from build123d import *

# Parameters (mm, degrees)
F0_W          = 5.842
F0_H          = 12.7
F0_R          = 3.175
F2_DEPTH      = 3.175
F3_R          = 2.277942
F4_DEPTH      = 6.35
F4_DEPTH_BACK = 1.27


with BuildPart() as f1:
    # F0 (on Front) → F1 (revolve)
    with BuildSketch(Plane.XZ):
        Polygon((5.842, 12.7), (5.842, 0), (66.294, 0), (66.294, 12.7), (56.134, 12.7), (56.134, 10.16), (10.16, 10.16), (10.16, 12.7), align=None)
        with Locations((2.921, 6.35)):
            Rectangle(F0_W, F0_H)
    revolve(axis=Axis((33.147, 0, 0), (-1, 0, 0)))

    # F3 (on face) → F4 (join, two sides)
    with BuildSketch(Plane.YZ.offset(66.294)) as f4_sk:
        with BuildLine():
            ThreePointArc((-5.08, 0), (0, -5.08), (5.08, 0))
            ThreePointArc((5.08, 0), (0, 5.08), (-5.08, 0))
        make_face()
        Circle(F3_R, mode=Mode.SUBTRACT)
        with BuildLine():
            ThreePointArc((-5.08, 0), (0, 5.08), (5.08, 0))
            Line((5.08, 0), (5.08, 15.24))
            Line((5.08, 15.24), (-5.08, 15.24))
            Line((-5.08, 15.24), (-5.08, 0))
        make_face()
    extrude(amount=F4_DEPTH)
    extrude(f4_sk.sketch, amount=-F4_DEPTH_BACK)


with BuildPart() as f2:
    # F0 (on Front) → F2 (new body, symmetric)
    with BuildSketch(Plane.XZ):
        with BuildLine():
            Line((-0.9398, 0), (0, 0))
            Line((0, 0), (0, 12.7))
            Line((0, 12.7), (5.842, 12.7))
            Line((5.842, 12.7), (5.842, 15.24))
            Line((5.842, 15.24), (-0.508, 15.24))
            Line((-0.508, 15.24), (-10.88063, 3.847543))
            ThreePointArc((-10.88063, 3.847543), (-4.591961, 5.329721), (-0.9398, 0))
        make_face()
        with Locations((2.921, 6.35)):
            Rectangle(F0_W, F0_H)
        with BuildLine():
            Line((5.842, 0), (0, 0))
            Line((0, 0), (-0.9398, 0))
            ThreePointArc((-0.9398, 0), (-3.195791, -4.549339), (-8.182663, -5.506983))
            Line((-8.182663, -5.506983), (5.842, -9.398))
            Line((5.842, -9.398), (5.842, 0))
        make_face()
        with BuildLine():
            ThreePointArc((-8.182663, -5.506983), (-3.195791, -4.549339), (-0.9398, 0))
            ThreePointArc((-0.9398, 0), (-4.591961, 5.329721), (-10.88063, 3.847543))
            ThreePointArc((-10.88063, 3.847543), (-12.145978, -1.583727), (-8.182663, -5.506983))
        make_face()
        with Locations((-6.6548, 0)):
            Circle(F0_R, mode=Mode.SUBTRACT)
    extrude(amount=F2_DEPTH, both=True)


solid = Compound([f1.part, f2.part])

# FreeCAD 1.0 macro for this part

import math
import FreeCAD as App
import Part
import Sketcher
Q = App.Units.Quantity


def add_polygon(sketch, points):
    """Adds a closed chain of lines whose ends are joined by coincident constraints."""
    first, n = sketch.GeometryCount, len(points)
    for a, b in zip(points, points[1:] + points[:1]):
        sketch.addGeometry(Part.LineSegment(App.Vector(*a, 0), App.Vector(*b, 0)), False)
    for i in range(n):
        sketch.addConstraint(Sketcher.Constraint("Coincident", first + i, 2, first + (i + 1) % n, 1))

doc = App.newDocument("Part")
params = doc.addObject("Spreadsheet::Sheet", "Params")
for row, (alias, value) in enumerate([
    ("sketch1_width", "0.4 in"),
    ("sketch1_height", "0.5 in"),
    ("sketch1_height2", "0.1 in"),
    ("sketch1_width2", "1.81 in"),
    ("revolution_angle", "360 deg"),
    ("sketch2_radius", "0.2 in"),
    ("sketch2_height", "0.6 in"),
    ("pad1_length", "0.25 in"),
    ("pad1_length2", "0.05 in"),
    ("sketch3_diameter", "0.25 in"),
    ("sketch3_radius", "0.225 in"),
    ("sketch3_width", "0.25 in"),
    ("sketch3_height", "0.97 in"),
    ("pad2_length", "0.25 in"),
], start=1):
    params.set(f"A{row}", alias)
    params.set(f"B{row}", "=" + value)
    params.setAlias(f"B{row}", alias)

body = doc.addObject("PartDesign::Body", "Body")

# Sketch on XZ plane
sketch1 = body.newObject("Sketcher::SketchObject", "Sketch")
sketch1.AttachmentSupport = (doc.getObject("XZ_Plane"), [""])
sketch1.MapMode = "FlatFace"
add_polygon(sketch1, [(66.3, 0), (66.3, 12.7), (56.1, 12.7), (56.1, 10.2), (10.2, 10.2), (10.2, 12.7), (0, 12.7), (0, 0)])  # lines 0-7
sketch1.addConstraint([
    Sketcher.Constraint("Vertical", 0),
    Sketcher.Constraint("Horizontal", 1),
    Sketcher.Constraint("Vertical", 2),
    Sketcher.Constraint("Horizontal", 3),
    Sketcher.Constraint("Vertical", 4),
    Sketcher.Constraint("Horizontal", 5),
    Sketcher.Constraint("Vertical", 6),
    Sketcher.Constraint("Horizontal", 7),
    Sketcher.Constraint("Coincident", 6, 2, -1, 1),
    Sketcher.Constraint("Horizontal", 1, 2, 4, 2),
    Sketcher.Constraint("Equal", 1, 5),
    Sketcher.Constraint("DistanceX", 1, 2, 1, 1, Q("0.4 in")),
    Sketcher.Constraint("DistanceY", 0, 1, 0, 2, Q("0.5 in")),
    Sketcher.Constraint("DistanceY", 2, 2, 2, 1, Q("0.1 in")),
    Sketcher.Constraint("DistanceX", 3, 2, 3, 1, Q("1.81 in")),
])
sketch1.setExpression("Constraints[19]", "Params.sketch1_width")
sketch1.setExpression("Constraints[20]", "Params.sketch1_height")
sketch1.setExpression("Constraints[21]", "Params.sketch1_height2")
sketch1.setExpression("Constraints[22]", "Params.sketch1_width2")
revolution = body.newObject("PartDesign::Revolution", "Revolution")
revolution.Profile = sketch1
revolution.ReferenceAxis = (sketch1, ["H_Axis"])
revolution.setExpression("Angle", "Params.revolution_angle")

# Sketch on YZ plane
sketch2 = body.newObject("Sketcher::SketchObject", "Sketch001")
sketch2.AttachmentSupport = (doc.getObject("YZ_Plane"), [""])
sketch2.MapMode = "FlatFace"
sketch2.AttachmentOffset = App.Placement(App.Vector(0, 0, 2.61 * 25.4), App.Rotation())
sketch2.addGeometry([
    Part.ArcOfCircle(Part.Circle(App.Vector(0, 0, 0), App.Vector(0, 0, 1), 5.1), math.radians(180), math.radians(360)),  # 0
    Part.LineSegment(App.Vector(5.1, 0, 0), App.Vector(5.1, 15.2, 0)),  # 1
    Part.LineSegment(App.Vector(5.1, 15.2, 0), App.Vector(-5.1, 15.2, 0)),  # 2
    Part.LineSegment(App.Vector(-5.1, 15.2, 0), App.Vector(-5.1, 0, 0)),  # 3
    Part.Circle(App.Vector(0, 0, 0), App.Vector(0, 0, 1), 2.3),  # 4
], False)
sketch2.addConstraint([
    Sketcher.Constraint("Tangent", 0, 2, 1, 1),
    Sketcher.Constraint("Coincident", 1, 2, 2, 1),
    Sketcher.Constraint("Coincident", 2, 2, 3, 1),
    Sketcher.Constraint("Tangent", 3, 2, 0, 1),
    Sketcher.Constraint("Vertical", 1),
    Sketcher.Constraint("Horizontal", 2),
    Sketcher.Constraint("Vertical", 3),
    Sketcher.Constraint("Coincident", 0, 3, -1, 1),
    Sketcher.Constraint("Coincident", 4, 3, -1, 1),
    Sketcher.Constraint("Radius", 0, Q("0.2 in")),
    Sketcher.Constraint("DistanceY", 1, 1, 1, 2, Q("0.6 in")),
    Sketcher.Constraint("Diameter", 4, Q("4.555884 mm")),
])
sketch2.setExpression("Constraints[9]", "Params.sketch2_radius")
sketch2.setExpression("Constraints[10]", "Params.sketch2_height")
pad1 = body.newObject("PartDesign::Pad", "Pad")
pad1.Profile = sketch2
pad1.Type = "TwoLengths"
pad1.setExpression("Length", "Params.pad1_length")
pad1.setExpression("Length2", "Params.pad1_length2")
body2 = doc.addObject("PartDesign::Body", "Body001")

# Sketch on XZ plane
sketch3 = body2.newObject("Sketcher::SketchObject", "Sketch002")
sketch3.AttachmentSupport = (doc.getObject("XZ_Plane001"), [""])
sketch3.MapMode = "FlatFace"
sketch3.addGeometry([
    Part.LineSegment(App.Vector(5.8, 15.2, 0), App.Vector(-0.5, 15.2, 0)),  # 0
    Part.LineSegment(App.Vector(-0.5, 15.2, 0), App.Vector(-10.9, 3.8, 0)),  # 1
    Part.ArcOfCircle(Part.Circle(App.Vector(-6.7, 0, 0), App.Vector(0, 0, 1), 5.7), math.radians(138), math.radians(254)),  # 2
    Part.LineSegment(App.Vector(-8.2, -5.5, 0), App.Vector(5.8, -9.4, 0)),  # 3
    Part.LineSegment(App.Vector(5.8, -9.4, 0), App.Vector(5.8, 15.2, 0)),  # 4
    Part.Circle(App.Vector(-6.7, 0, 0), App.Vector(0, 0, 1), 3.2),  # 5
], False)
sketch3.addConstraint([
    Sketcher.Constraint("Coincident", 0, 2, 1, 1),
    Sketcher.Constraint("Tangent", 1, 2, 2, 1),
    Sketcher.Constraint("Tangent", 2, 2, 3, 1),
    Sketcher.Constraint("Coincident", 3, 2, 4, 1),
    Sketcher.Constraint("Coincident", 4, 2, 0, 1),
    Sketcher.Constraint("Horizontal", 0),
    Sketcher.Constraint("Vertical", 4),
    Sketcher.Constraint("Coincident", 5, 3, 2, 3),
    Sketcher.Constraint("PointOnObject", 2, 3, -1),
    Sketcher.Constraint("Diameter", 5, Q("0.25 in")),
    Sketcher.Constraint("Radius", 2, Q("0.225 in")),
    Sketcher.Constraint("DistanceX", 0, 2, 0, 1, Q("0.25 in")),
    Sketcher.Constraint("DistanceY", 4, 1, 4, 2, Q("0.97 in")),
    Sketcher.Constraint("DistanceY", -1, 1, 0, 2, Q("0.6 in")),
    Sketcher.Constraint("DistanceX", 0, 2, -1, 1, Q("0.02 in")),
    Sketcher.Constraint("DistanceX", 2, 3, -1, 1, Q("0.262 in")),
])
sketch3.setExpression("Constraints[9]", "Params.sketch3_diameter")
sketch3.setExpression("Constraints[10]", "Params.sketch3_radius")
sketch3.setExpression("Constraints[11]", "Params.sketch3_width")
sketch3.setExpression("Constraints[12]", "Params.sketch3_height")
pad2 = body2.newObject("PartDesign::Pad", "Pad001")
pad2.Profile = sketch3
pad2.setExpression("Length", "Params.pad2_length")
pad2.Midplane = True

doc.recompute()
